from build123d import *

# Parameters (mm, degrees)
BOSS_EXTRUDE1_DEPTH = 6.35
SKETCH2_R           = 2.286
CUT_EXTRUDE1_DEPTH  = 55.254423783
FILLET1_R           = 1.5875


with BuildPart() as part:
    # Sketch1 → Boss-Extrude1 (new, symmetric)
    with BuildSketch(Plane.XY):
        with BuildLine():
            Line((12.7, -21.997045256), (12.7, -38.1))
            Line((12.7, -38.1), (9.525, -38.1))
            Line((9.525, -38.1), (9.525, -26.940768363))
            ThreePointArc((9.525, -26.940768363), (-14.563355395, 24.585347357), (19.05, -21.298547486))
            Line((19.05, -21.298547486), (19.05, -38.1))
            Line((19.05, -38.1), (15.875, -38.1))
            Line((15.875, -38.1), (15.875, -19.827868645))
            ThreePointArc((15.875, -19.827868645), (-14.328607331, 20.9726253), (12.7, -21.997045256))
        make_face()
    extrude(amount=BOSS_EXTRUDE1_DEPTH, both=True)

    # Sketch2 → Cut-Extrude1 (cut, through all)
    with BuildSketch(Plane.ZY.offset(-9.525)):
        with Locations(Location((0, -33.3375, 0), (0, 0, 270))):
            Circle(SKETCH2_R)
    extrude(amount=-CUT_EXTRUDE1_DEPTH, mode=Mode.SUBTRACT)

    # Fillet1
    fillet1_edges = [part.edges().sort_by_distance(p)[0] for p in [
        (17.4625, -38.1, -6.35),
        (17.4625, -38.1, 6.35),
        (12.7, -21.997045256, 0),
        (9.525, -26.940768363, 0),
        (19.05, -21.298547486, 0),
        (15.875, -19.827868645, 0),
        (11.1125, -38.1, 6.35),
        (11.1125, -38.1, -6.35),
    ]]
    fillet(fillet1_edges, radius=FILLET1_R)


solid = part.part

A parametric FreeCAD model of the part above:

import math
import FreeCAD as App
import Part
import Sketcher
Q = App.Units.Quantity


def edges_at(feature, points):
    """Names of the edges that pass closest to the given points."""
    edges = feature.Shape.Edges
    near = lambda p: min(range(len(edges)), key=lambda i: edges[i].distToShape(Part.Vertex(*p))[0])
    return sorted({f"Edge{near(p) + 1}" for p in points})

doc = App.newDocument("Part")
body = doc.addObject("PartDesign::Body", "Body")

# Sketch on XY plane
sketch1 = body.newObject("Sketcher::SketchObject", "Sketch")
sketch1.AttachmentSupport = (doc.getObject("XY_Plane"), [""])
sketch1.MapMode = "FlatFace"
sketch1.addGeometry([
    Part.LineSegment(App.Vector(12.7, -38.1, 0), App.Vector(12.7, -22, 0)),  # 0
    Part.ArcOfCircle(Part.Circle(App.Vector(0, 0, 0), App.Vector(0, 0, 1), 25.4), math.radians(-51), math.radians(300)),  # 1
    Part.LineSegment(App.Vector(15.9, -19.8, 0), App.Vector(15.9, -38.1, 0)),  # 2
    Part.LineSegment(App.Vector(15.9, -38.1, 0), App.Vector(19.1, -38.1, 0)),  # 3
    Part.LineSegment(App.Vector(19.1, -38.1, 0), App.Vector(19.1, -21.3, 0)),  # 4
    Part.ArcOfCircle(Part.Circle(App.Vector(0, 0, 0), App.Vector(0, 0, 1), 28.6), math.radians(-48), math.radians(289)),  # 5
    Part.LineSegment(App.Vector(9.5, -26.9, 0), App.Vector(9.5, -38.1, 0)),  # 6
    Part.LineSegment(App.Vector(9.5, -38.1, 0), App.Vector(12.7, -38.1, 0)),  # 7
], False)
sketch1.addConstraint([
    Sketcher.Constraint("Coincident", 0, 2, 1, 2),
    Sketcher.Constraint("Coincident", 1, 1, 2, 1),
    Sketcher.Constraint("Coincident", 2, 2, 3, 1),
    Sketcher.Constraint("Coincident", 3, 2, 4, 1),
    Sketcher.Constraint("Coincident", 4, 2, 5, 1),
    Sketcher.Constraint("Coincident", 5, 2, 6, 1),
    Sketcher.Constraint("Coincident", 6, 2, 7, 1),
    Sketcher.Constraint("Coincident", 7, 2, 0, 1),
    Sketcher.Constraint("Vertical", 0),
    Sketcher.Constraint("Vertical", 2),
    Sketcher.Constraint("Horizontal", 3),
    Sketcher.Constraint("Vertical", 4),
    Sketcher.Constraint("Vertical", 6),
    Sketcher.Constraint("Horizontal", 7),
    Sketcher.Constraint("Coincident", 1, 3, -1, 1),
    Sketcher.Constraint("Coincident", 5, 3, -1, 1),
    Sketcher.Constraint("Horizontal", 3, 2, 6, 2),
    Sketcher.Constraint("Equal", 3, 7),
    Sketcher.Constraint("Radius", 1, Q("1 in")),
    Sketcher.Constraint("Radius", 5, Q("1.125 in")),
    Sketcher.Constraint("DistanceX", -1, 1, 0, 2, Q("0.5 in")),
    Sketcher.Constraint("DistanceY", 2, 2, -1, 1, Q("1.5 in")),
    Sketcher.Constraint("DistanceX", 3, 1, 3, 2, Q("0.125 in")),
    Sketcher.Constraint("DistanceX", -1, 1, 3, 2, Q("0.75 in")),
])
pad1 = body.newObject("PartDesign::Pad", "Pad")
pad1.Profile = sketch1
pad1.Length = Q("0.5 in")
pad1.Midplane = True

# Sketch on YZ plane
sketch2 = body.newObject("Sketcher::SketchObject", "Sketch001")
sketch2.AttachmentSupport = (doc.getObject("YZ_Plane"), [""])
sketch2.MapMode = "FlatFace"
sketch2.AttachmentOffset = App.Placement(App.Vector(0, 0, 0.375 * 25.4), App.Rotation())
sketch2.addGeometry(Part.Circle(App.Vector(-33.3, 0, 0), App.Vector(0, 0, 1), 2.3), False)
sketch2.addConstraint([
    Sketcher.Constraint("PointOnObject", 0, 3, -1),
    Sketcher.Constraint("Diameter", 0, Q("0.18 in")),
    Sketcher.Constraint("DistanceX", 0, 3, -1, 1, Q("1.3125 in")),
])
pocket1 = body.newObject("PartDesign::Pocket", "Pocket")
pocket1.Profile = sketch2
pocket1.Type = "ThroughAll"
pocket1.Reversed = True
doc.recompute()

fillet = body.newObject("PartDesign::Fillet", "Fillet")
fillet.Base = (pocket1, edges_at(pocket1, [
    (17.462, -38.1, -6.35),
    (17.462, -38.1, 6.35),
    (12.7, -21.997, 0),
    (9.525, -26.941, 0),
    (19.05, -21.299, 0),
    (15.875, -19.828, 0),
    (11.113, -38.1, 6.35),
    (11.113, -38.1, -6.35),
]))
fillet.Radius = Q("0.0625 in")

doc.recompute()
